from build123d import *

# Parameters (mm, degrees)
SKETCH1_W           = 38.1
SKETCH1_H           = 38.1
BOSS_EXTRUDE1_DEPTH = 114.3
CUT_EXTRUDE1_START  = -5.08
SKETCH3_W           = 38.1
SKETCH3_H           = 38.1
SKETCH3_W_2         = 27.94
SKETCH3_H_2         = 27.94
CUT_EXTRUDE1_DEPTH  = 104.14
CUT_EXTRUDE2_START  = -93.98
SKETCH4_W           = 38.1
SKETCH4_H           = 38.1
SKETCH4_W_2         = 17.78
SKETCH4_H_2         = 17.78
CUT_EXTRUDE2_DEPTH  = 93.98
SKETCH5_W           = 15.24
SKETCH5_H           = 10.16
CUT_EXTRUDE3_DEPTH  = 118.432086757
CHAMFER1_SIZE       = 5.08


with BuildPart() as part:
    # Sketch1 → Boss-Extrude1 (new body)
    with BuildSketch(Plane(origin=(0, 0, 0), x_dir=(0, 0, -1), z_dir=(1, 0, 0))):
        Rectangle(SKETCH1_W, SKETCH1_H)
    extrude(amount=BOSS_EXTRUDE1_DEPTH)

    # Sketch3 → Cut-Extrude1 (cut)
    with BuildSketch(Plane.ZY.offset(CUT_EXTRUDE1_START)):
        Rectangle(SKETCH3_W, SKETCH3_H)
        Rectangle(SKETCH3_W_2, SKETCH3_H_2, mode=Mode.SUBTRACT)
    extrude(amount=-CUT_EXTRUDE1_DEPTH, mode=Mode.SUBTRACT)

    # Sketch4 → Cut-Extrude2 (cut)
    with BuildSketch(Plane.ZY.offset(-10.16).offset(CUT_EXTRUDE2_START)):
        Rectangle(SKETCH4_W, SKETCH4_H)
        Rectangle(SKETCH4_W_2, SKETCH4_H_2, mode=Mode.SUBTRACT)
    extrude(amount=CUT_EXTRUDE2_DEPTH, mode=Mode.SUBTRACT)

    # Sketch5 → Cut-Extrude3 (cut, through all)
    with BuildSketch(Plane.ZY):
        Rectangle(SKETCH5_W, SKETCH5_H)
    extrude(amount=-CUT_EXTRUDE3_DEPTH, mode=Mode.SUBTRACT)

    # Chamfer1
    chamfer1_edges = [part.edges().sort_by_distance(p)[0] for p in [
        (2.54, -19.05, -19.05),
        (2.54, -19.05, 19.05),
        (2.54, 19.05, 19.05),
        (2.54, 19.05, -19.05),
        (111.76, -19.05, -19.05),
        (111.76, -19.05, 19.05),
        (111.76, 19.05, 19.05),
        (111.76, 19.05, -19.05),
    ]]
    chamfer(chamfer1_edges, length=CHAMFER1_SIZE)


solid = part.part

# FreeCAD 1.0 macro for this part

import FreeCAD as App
import Part
import Sketcher
Q = App.Units.Quantity


def edges_at(feature, points):
    """Names of the edges that pass closest to the given points."""
    edges = feature.Shape.Edges
    near = lambda p: min(range(len(edges)), key=lambda i: edges[i].distToShape(Part.Vertex(*p))[0])
    return sorted({f"Edge{near(p) + 1}" for p in points})

doc = App.newDocument("Part")
params = doc.addObject("Spreadsheet::Sheet", "Params")
for row, (alias, value) in enumerate([
    ("sketch1_width", "1.5 in"),
    ("pad1_length", "4.5 in"),
    ("sketch2_width", "1.5 in"),
    ("sketch2_width2", "1.1 in"),
    ("pocket1_length", "4.1 in"),
    ("sketch3_width", "1.5 in"),
    ("sketch3_width2", "0.7 in"),
    ("pocket2_length", "3.7 in"),
    ("sketch4_width", "0.4 in"),
    ("sketch4_height", "0.6 in"),
    ("chamfer_size", "0.2 in"),
], start=1):
    params.set(f"A{row}", alias)
    params.set(f"B{row}", "=" + value)
    params.setAlias(f"B{row}", alias)

body = doc.addObject("PartDesign::Body", "Body")

# Sketch on YZ plane
sketch1 = body.newObject("Sketcher::SketchObject", "Sketch")
sketch1.AttachmentSupport = (doc.getObject("YZ_Plane"), [""])
sketch1.MapMode = "FlatFace"
sketch1.addGeometry([
    Part.LineSegment(App.Vector(19.05, 19.05, 0), App.Vector(-19.05, 19.05, 0)),
    Part.LineSegment(App.Vector(-19.05, 19.05, 0), App.Vector(-19.05, -19.05, 0)),
    Part.LineSegment(App.Vector(-19.05, -19.05, 0), App.Vector(19.05, -19.05, 0)),
    Part.LineSegment(App.Vector(19.05, -19.05, 0), App.Vector(19.05, 19.05, 0)),
], False)
sketch1.addConstraint([
    Sketcher.Constraint("Coincident", 0, 2, 1, 1),
    Sketcher.Constraint("Coincident", 1, 2, 2, 1),
    Sketcher.Constraint("Coincident", 2, 2, 3, 1),
    Sketcher.Constraint("Coincident", 3, 2, 0, 1),
    Sketcher.Constraint("Horizontal", 0),
    Sketcher.Constraint("Vertical", 1),
    Sketcher.Constraint("Horizontal", 2),
    Sketcher.Constraint("Vertical", 3),
    Sketcher.Constraint("Symmetric", 0, 2, 2, 2, -1, 1),
    Sketcher.Constraint("Equal", 2, 1),
    Sketcher.Constraint("DistanceX", 0, 2, 0, 1, Q("1.5 in")),
])
sketch1.setExpression("Constraints[10]", "Params.sketch1_width")
pad1 = body.newObject("PartDesign::Pad", "Pad")
pad1.Profile = sketch1
pad1.setExpression("Length", "Params.pad1_length")

# Sketch on YZ plane
sketch2 = body.newObject("Sketcher::SketchObject", "Sketch001")
sketch2.AttachmentSupport = (doc.getObject("YZ_Plane"), [""])
sketch2.MapMode = "FlatFace"
sketch2.AttachmentOffset = App.Placement(App.Vector(0, 0, 0.2 * 25.4), App.Rotation())
sketch2.addGeometry([
    Part.LineSegment(App.Vector(19.05, -19.05, 0), App.Vector(-19.05, -19.05, 0)),  # 0
    Part.LineSegment(App.Vector(-19.05, -19.05, 0), App.Vector(-19.05, 19.05, 0)),  # 1
    Part.LineSegment(App.Vector(-19.05, 19.05, 0), App.Vector(19.05, 19.05, 0)),  # 2
    Part.LineSegment(App.Vector(19.05, 19.05, 0), App.Vector(19.05, -19.05, 0)),  # 3
    Part.LineSegment(App.Vector(-13.97, 13.97, 0), App.Vector(-13.97, -13.97, 0)),  # 4
    Part.LineSegment(App.Vector(-13.97, -13.97, 0), App.Vector(13.97, -13.97, 0)),  # 5
    Part.LineSegment(App.Vector(13.97, -13.97, 0), App.Vector(13.97, 13.97, 0)),  # 6
    Part.LineSegment(App.Vector(13.97, 13.97, 0), App.Vector(-13.97, 13.97, 0)),  # 7
], False)
sketch2.addConstraint([
    Sketcher.Constraint("Coincident", 0, 2, 1, 1),
    Sketcher.Constraint("Coincident", 1, 2, 2, 1),
    Sketcher.Constraint("Coincident", 2, 2, 3, 1),
    Sketcher.Constraint("Coincident", 3, 2, 0, 1),
    Sketcher.Constraint("Coincident", 4, 2, 5, 1),
    Sketcher.Constraint("Coincident", 5, 2, 6, 1),
    Sketcher.Constraint("Coincident", 6, 2, 7, 1),
    Sketcher.Constraint("Coincident", 7, 2, 4, 1),
    Sketcher.Constraint("Horizontal", 0),
    Sketcher.Constraint("Vertical", 1),
    Sketcher.Constraint("Horizontal", 2),
    Sketcher.Constraint("Vertical", 3),
    Sketcher.Constraint("Vertical", 4),
    Sketcher.Constraint("Horizontal", 5),
    Sketcher.Constraint("Vertical", 6),
    Sketcher.Constraint("Horizontal", 7),
    Sketcher.Constraint("Symmetric", 0, 2, 2, 2, -1, 1),
    Sketcher.Constraint("Symmetric", 4, 2, 6, 2, -1, 1),
    Sketcher.Constraint("Equal", 2, 1),
    Sketcher.Constraint("Equal", 7, 4),
    Sketcher.Constraint("DistanceX", 0, 2, 0, 1, Q("1.5 in")),
    Sketcher.Constraint("DistanceX", 5, 1, 5, 2, Q("1.1 in")),
])
sketch2.setExpression("Constraints[20]", "Params.sketch2_width")
sketch2.setExpression("Constraints[21]", "Params.sketch2_width2")
pocket1 = body.newObject("PartDesign::Pocket", "Pocket")
pocket1.Profile = sketch2
pocket1.setExpression("Length", "Params.pocket1_length")
pocket1.Reversed = True

# Sketch on YZ plane
sketch3 = body.newObject("Sketcher::SketchObject", "Sketch002")
sketch3.AttachmentSupport = (doc.getObject("YZ_Plane"), [""])
sketch3.MapMode = "FlatFace"
sketch3.AttachmentOffset = App.Placement(App.Vector(0, 0, 4.1 * 25.4), App.Rotation())
sketch3.addGeometry([
    Part.LineSegment(App.Vector(19.05, -19.05, 0), App.Vector(-19.05, -19.05, 0)),  # 0
    Part.LineSegment(App.Vector(-19.05, -19.05, 0), App.Vector(-19.05, 19.05, 0)),  # 1
    Part.LineSegment(App.Vector(-19.05, 19.05, 0), App.Vector(19.05, 19.05, 0)),  # 2
    Part.LineSegment(App.Vector(19.05, 19.05, 0), App.Vector(19.05, -19.05, 0)),  # 3
    Part.LineSegment(App.Vector(-8.89, 8.89, 0), App.Vector(-8.89, -8.89, 0)),  # 4
    Part.LineSegment(App.Vector(-8.89, -8.89, 0), App.Vector(8.89, -8.89, 0)),  # 5
    Part.LineSegment(App.Vector(8.89, -8.89, 0), App.Vector(8.89, 8.89, 0)),  # 6
    Part.LineSegment(App.Vector(8.89, 8.89, 0), App.Vector(-8.89, 8.89, 0)),  # 7
], False)
sketch3.addConstraint([
    Sketcher.Constraint("Coincident", 0, 2, 1, 1),
    Sketcher.Constraint("Coincident", 1, 2, 2, 1),
    Sketcher.Constraint("Coincident", 2, 2, 3, 1),
    Sketcher.Constraint("Coincident", 3, 2, 0, 1),
    Sketcher.Constraint("Coincident", 4, 2, 5, 1),
    Sketcher.Constraint("Coincident", 5, 2, 6, 1),
    Sketcher.Constraint("Coincident", 6, 2, 7, 1),
    Sketcher.Constraint("Coincident", 7, 2, 4, 1),
    Sketcher.Constraint("Horizontal", 0),
    Sketcher.Constraint("Vertical", 1),
    Sketcher.Constraint("Horizontal", 2),
    Sketcher.Constraint("Vertical", 3),
    Sketcher.Constraint("Vertical", 4),
    Sketcher.Constraint("Horizontal", 5),
    Sketcher.Constraint("Vertical", 6),
    Sketcher.Constraint("Horizontal", 7),
    Sketcher.Constraint("Symmetric", 0, 2, 2, 2, -1, 1),
    Sketcher.Constraint("Symmetric", 4, 2, 6, 2, -1, 1),
    Sketcher.Constraint("Equal", 2, 1),
    Sketcher.Constraint("Equal", 7, 4),
    Sketcher.Constraint("DistanceX", 0, 2, 0, 1, Q("1.5 in")),
    Sketcher.Constraint("DistanceX", 5, 1, 5, 2, Q("0.7 in")),
])
sketch3.setExpression("Constraints[20]", "Params.sketch3_width")
sketch3.setExpression("Constraints[21]", "Params.sketch3_width2")
pocket2 = body.newObject("PartDesign::Pocket", "Pocket001")
pocket2.Profile = sketch3
pocket2.setExpression("Length", "Params.pocket2_length")

# Sketch on YZ plane
sketch4 = body.newObject("Sketcher::SketchObject", "Sketch003")
sketch4.AttachmentSupport = (doc.getObject("YZ_Plane"), [""])
sketch4.MapMode = "FlatFace"
sketch4.addGeometry([
    Part.LineSegment(App.Vector(5.08, -7.62, 0), App.Vector(-5.08, -7.62, 0)),
    Part.LineSegment(App.Vector(-5.08, -7.62, 0), App.Vector(-5.08, 7.62, 0)),
    Part.LineSegment(App.Vector(-5.08, 7.62, 0), App.Vector(5.08, 7.62, 0)),
    Part.LineSegment(App.Vector(5.08, 7.62, 0), App.Vector(5.08, -7.62, 0)),
], False)
sketch4.addConstraint([
    Sketcher.Constraint("Coincident", 0, 2, 1, 1),
    Sketcher.Constraint("Coincident", 1, 2, 2, 1),
    Sketcher.Constraint("Coincident", 2, 2, 3, 1),
    Sketcher.Constraint("Coincident", 3, 2, 0, 1),
    Sketcher.Constraint("Horizontal", 0),
    Sketcher.Constraint("Vertical", 1),
    Sketcher.Constraint("Horizontal", 2),
    Sketcher.Constraint("Vertical", 3),
    Sketcher.Constraint("Symmetric", 0, 2, 2, 2, -1, 1),
    Sketcher.Constraint("DistanceX", 0, 2, 0, 1, Q("0.4 in")),
    Sketcher.Constraint("DistanceY", 1, 1, 1, 2, Q("0.6 in")),
])
sketch4.setExpression("Constraints[9]", "Params.sketch4_width")
sketch4.setExpression("Constraints[10]", "Params.sketch4_height")
pocket3 = body.newObject("PartDesign::Pocket", "Pocket002")
pocket3.Profile = sketch4
pocket3.Type = "ThroughAll"
pocket3.Reversed = True
doc.recompute()

chamfer = body.newObject("PartDesign::Chamfer", "Chamfer")
chamfer.Base = (pocket3, edges_at(pocket3, [
    (2.54, -19.05, -19.05),
    (2.54, -19.05, 19.05),
    (2.54, 19.05, 19.05),
    (2.54, 19.05, -19.05),
    (111.76, -19.05, -19.05),
    (111.76, -19.05, 19.05),
    (111.76, 19.05, 19.05),
    (111.76, 19.05, -19.05),
]))
chamfer.setExpression("Size", "Params.chamfer_size")

doc.recompute()
